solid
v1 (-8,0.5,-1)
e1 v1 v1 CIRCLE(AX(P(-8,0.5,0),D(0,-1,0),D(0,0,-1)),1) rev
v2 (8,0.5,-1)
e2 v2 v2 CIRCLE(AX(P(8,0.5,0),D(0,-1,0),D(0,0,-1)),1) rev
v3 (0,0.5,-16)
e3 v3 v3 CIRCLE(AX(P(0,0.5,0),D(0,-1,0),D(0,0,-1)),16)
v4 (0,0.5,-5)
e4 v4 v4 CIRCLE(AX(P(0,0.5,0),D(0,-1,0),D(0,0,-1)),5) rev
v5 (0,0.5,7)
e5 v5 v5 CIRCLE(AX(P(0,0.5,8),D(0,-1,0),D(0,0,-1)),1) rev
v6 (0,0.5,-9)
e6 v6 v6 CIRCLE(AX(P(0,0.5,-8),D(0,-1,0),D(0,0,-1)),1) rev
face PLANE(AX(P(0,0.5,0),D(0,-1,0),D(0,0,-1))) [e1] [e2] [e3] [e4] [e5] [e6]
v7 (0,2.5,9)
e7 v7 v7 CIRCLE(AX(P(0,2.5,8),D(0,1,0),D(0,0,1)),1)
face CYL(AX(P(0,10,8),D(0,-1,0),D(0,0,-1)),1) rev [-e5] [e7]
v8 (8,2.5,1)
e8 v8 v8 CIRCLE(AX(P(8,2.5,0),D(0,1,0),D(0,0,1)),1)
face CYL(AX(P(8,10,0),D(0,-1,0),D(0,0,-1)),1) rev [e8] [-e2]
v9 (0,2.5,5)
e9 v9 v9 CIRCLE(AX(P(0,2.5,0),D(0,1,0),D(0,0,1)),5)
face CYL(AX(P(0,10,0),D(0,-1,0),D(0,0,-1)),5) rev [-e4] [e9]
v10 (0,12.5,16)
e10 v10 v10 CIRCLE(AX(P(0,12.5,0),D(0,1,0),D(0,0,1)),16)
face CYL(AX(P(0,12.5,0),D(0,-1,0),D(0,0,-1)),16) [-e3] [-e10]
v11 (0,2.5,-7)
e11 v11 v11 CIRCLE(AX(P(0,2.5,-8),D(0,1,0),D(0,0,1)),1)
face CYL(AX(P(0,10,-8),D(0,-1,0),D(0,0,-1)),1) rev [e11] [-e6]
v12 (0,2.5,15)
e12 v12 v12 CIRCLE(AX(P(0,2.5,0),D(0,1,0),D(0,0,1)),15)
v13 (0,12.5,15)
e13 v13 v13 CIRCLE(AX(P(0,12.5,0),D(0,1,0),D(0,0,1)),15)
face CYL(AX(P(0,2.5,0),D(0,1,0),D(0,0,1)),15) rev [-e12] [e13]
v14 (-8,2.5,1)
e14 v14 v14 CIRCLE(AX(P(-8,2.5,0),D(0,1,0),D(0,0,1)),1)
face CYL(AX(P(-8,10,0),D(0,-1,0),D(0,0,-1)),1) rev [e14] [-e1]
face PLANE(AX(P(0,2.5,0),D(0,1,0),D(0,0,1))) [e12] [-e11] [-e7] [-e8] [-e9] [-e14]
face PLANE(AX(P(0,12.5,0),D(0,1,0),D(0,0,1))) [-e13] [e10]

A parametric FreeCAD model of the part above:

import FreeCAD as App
import Part
import Sketcher
from FreeCAD import Vector

doc = App.newDocument("Part")
params = doc.addObject("Spreadsheet::Sheet", "Params")
for row, (alias, value) in enumerate([
    ("sketch1_diameter", "32 mm"),
    ("pad1_length", "12.5 mm"),
    ("sketch2_diameter", "30 mm"),
    ("pocket1_length", "10 mm"),
    ("sketch3_diameter", "10 mm"),
    ("pocket2_length", "10 mm"),
    ("sketch4_diameter", "2 mm"),
    ("pocket3_length", "10 mm"),
    ("sketch5_diameter", "32 mm"),
    ("pocket4_length", "0.5 mm"),
], start=1):
    params.set(f"A{row}", alias)
    params.set(f"B{row}", "=" + value)
    params.setAlias(f"B{row}", alias)

body = doc.addObject("PartDesign::Body", "Body")

# Sketch on XZ plane
sketch1 = doc.addObject("Sketcher::SketchObject", "Sketch")
body.addObject(sketch1)
sketch1.AttachmentSupport = (doc.XZ_Plane, [""])
sketch1.MapMode = "FlatFace"
sketch1.addGeometry(Part.Circle(Vector(0, 0, 0), Vector(0, 0, 1), 16), False)
sketch1.addConstraint(Sketcher.Constraint("Coincident", 0, 3, -1, 1))
sketch1.addConstraint(Sketcher.Constraint("Diameter", 0, 32.0))
sketch1.setExpression("Constraints[1]", "Params.sketch1_diameter")
pad1 = doc.addObject("PartDesign::Pad", "Pad")
body.addObject(pad1)
pad1.Profile = sketch1
pad1.setExpression("Length", "Params.pad1_length")
pad1.Reversed = True

# Sketch on XZ plane
sketch2 = doc.addObject("Sketcher::SketchObject", "Sketch001")
body.addObject(sketch2)
sketch2.AttachmentSupport = (doc.XZ_Plane, [""])
sketch2.MapMode = "FlatFace"
sketch2.AttachmentOffset = App.Placement(Vector(0, 0, -12.5), App.Rotation())
sketch2.addGeometry(Part.Circle(Vector(0, 0, 0), Vector(0, 0, 1), 15), False)
sketch2.addConstraint(Sketcher.Constraint("Coincident", 0, 3, -1, 1))
sketch2.addConstraint(Sketcher.Constraint("Diameter", 0, 30.0))
sketch2.setExpression("Constraints[1]", "Params.sketch2_diameter")
pocket1 = doc.addObject("PartDesign::Pocket", "Pocket")
body.addObject(pocket1)
pocket1.Profile = sketch2
pocket1.setExpression("Length", "Params.pocket1_length")
pocket1.Reversed = True

# Sketch on XZ plane
sketch3 = doc.addObject("Sketcher::SketchObject", "Sketch002")
body.addObject(sketch3)
sketch3.AttachmentSupport = (doc.XZ_Plane, [""])
sketch3.MapMode = "FlatFace"
sketch3.addGeometry(Part.Circle(Vector(0, 0, 0), Vector(0, 0, 1), 5), False)
sketch3.addConstraint(Sketcher.Constraint("Coincident", 0, 3, -1, 1))
sketch3.addConstraint(Sketcher.Constraint("Diameter", 0, 10.0))
sketch3.setExpression("Constraints[1]", "Params.sketch3_diameter")
pocket2 = doc.addObject("PartDesign::Pocket", "Pocket001")
body.addObject(pocket2)
pocket2.Profile = sketch3
pocket2.setExpression("Length", "Params.pocket2_length")

# Sketch on XZ plane
sketch4 = doc.addObject("Sketcher::SketchObject", "Sketch003")
body.addObject(sketch4)
sketch4.AttachmentSupport = (doc.XZ_Plane, [""])
sketch4.MapMode = "FlatFace"
sketch4.addGeometry(Part.Circle(Vector(0, -8, 0), Vector(0, 0, 1), 1), False)
sketch4.addGeometry(Part.Circle(Vector(0, 8, 0), Vector(0, 0, 1), 1), False)
sketch4.addGeometry(Part.Circle(Vector(8, 0, 0), Vector(0, 0, 1), 1), False)
sketch4.addGeometry(Part.Circle(Vector(-8, 0, 0), Vector(0, 0, 1), 1), False)
sketch4.addConstraint(Sketcher.Constraint("Equal", 0, 1))
sketch4.addConstraint(Sketcher.Constraint("Equal", 1, 2))
sketch4.addConstraint(Sketcher.Constraint("Equal", 2, 3))
sketch4.addConstraint(Sketcher.Constraint("Symmetric", 0, 3, 1, 3, -1, 1))
sketch4.addConstraint(Sketcher.Constraint("Symmetric", 2, 3, 3, 3, -1, 1))
sketch4.addConstraint(Sketcher.Constraint("PointOnObject", 0, 3, -2))
sketch4.addConstraint(Sketcher.Constraint("PointOnObject", 2, 3, -1))
sketch4.addConstraint(Sketcher.Constraint("Diameter", 0, 2.0))
sketch4.addConstraint(Sketcher.Constraint("DistanceY", 0, 3, -1, 1, 8.0))
sketch4.addConstraint(Sketcher.Constraint("DistanceX", -1, 1, 2, 3, 8.0))
sketch4.setExpression("Constraints[7]", "Params.sketch4_diameter")
pocket3 = doc.addObject("PartDesign::Pocket", "Pocket002")
body.addObject(pocket3)
pocket3.Profile = sketch4
pocket3.setExpression("Length", "Params.pocket3_length")

# Sketch on XZ plane
sketch5 = doc.addObject("Sketcher::SketchObject", "Sketch004")
body.addObject(sketch5)
sketch5.AttachmentSupport = (doc.XZ_Plane, [""])
sketch5.MapMode = "FlatFace"
sketch5.addGeometry(Part.Circle(Vector(0, 0, 0), Vector(0, 0, 1), 16), False)
sketch5.addConstraint(Sketcher.Constraint("Coincident", 0, 3, -1, 1))
sketch5.addConstraint(Sketcher.Constraint("Diameter", 0, 32.0))
sketch5.setExpression("Constraints[1]", "Params.sketch5_diameter")
pocket4 = doc.addObject("PartDesign::Pocket", "Pocket003")
body.addObject(pocket4)
pocket4.Profile = sketch5
pocket4.setExpression("Length", "Params.pocket4_length")

doc.recompute()
